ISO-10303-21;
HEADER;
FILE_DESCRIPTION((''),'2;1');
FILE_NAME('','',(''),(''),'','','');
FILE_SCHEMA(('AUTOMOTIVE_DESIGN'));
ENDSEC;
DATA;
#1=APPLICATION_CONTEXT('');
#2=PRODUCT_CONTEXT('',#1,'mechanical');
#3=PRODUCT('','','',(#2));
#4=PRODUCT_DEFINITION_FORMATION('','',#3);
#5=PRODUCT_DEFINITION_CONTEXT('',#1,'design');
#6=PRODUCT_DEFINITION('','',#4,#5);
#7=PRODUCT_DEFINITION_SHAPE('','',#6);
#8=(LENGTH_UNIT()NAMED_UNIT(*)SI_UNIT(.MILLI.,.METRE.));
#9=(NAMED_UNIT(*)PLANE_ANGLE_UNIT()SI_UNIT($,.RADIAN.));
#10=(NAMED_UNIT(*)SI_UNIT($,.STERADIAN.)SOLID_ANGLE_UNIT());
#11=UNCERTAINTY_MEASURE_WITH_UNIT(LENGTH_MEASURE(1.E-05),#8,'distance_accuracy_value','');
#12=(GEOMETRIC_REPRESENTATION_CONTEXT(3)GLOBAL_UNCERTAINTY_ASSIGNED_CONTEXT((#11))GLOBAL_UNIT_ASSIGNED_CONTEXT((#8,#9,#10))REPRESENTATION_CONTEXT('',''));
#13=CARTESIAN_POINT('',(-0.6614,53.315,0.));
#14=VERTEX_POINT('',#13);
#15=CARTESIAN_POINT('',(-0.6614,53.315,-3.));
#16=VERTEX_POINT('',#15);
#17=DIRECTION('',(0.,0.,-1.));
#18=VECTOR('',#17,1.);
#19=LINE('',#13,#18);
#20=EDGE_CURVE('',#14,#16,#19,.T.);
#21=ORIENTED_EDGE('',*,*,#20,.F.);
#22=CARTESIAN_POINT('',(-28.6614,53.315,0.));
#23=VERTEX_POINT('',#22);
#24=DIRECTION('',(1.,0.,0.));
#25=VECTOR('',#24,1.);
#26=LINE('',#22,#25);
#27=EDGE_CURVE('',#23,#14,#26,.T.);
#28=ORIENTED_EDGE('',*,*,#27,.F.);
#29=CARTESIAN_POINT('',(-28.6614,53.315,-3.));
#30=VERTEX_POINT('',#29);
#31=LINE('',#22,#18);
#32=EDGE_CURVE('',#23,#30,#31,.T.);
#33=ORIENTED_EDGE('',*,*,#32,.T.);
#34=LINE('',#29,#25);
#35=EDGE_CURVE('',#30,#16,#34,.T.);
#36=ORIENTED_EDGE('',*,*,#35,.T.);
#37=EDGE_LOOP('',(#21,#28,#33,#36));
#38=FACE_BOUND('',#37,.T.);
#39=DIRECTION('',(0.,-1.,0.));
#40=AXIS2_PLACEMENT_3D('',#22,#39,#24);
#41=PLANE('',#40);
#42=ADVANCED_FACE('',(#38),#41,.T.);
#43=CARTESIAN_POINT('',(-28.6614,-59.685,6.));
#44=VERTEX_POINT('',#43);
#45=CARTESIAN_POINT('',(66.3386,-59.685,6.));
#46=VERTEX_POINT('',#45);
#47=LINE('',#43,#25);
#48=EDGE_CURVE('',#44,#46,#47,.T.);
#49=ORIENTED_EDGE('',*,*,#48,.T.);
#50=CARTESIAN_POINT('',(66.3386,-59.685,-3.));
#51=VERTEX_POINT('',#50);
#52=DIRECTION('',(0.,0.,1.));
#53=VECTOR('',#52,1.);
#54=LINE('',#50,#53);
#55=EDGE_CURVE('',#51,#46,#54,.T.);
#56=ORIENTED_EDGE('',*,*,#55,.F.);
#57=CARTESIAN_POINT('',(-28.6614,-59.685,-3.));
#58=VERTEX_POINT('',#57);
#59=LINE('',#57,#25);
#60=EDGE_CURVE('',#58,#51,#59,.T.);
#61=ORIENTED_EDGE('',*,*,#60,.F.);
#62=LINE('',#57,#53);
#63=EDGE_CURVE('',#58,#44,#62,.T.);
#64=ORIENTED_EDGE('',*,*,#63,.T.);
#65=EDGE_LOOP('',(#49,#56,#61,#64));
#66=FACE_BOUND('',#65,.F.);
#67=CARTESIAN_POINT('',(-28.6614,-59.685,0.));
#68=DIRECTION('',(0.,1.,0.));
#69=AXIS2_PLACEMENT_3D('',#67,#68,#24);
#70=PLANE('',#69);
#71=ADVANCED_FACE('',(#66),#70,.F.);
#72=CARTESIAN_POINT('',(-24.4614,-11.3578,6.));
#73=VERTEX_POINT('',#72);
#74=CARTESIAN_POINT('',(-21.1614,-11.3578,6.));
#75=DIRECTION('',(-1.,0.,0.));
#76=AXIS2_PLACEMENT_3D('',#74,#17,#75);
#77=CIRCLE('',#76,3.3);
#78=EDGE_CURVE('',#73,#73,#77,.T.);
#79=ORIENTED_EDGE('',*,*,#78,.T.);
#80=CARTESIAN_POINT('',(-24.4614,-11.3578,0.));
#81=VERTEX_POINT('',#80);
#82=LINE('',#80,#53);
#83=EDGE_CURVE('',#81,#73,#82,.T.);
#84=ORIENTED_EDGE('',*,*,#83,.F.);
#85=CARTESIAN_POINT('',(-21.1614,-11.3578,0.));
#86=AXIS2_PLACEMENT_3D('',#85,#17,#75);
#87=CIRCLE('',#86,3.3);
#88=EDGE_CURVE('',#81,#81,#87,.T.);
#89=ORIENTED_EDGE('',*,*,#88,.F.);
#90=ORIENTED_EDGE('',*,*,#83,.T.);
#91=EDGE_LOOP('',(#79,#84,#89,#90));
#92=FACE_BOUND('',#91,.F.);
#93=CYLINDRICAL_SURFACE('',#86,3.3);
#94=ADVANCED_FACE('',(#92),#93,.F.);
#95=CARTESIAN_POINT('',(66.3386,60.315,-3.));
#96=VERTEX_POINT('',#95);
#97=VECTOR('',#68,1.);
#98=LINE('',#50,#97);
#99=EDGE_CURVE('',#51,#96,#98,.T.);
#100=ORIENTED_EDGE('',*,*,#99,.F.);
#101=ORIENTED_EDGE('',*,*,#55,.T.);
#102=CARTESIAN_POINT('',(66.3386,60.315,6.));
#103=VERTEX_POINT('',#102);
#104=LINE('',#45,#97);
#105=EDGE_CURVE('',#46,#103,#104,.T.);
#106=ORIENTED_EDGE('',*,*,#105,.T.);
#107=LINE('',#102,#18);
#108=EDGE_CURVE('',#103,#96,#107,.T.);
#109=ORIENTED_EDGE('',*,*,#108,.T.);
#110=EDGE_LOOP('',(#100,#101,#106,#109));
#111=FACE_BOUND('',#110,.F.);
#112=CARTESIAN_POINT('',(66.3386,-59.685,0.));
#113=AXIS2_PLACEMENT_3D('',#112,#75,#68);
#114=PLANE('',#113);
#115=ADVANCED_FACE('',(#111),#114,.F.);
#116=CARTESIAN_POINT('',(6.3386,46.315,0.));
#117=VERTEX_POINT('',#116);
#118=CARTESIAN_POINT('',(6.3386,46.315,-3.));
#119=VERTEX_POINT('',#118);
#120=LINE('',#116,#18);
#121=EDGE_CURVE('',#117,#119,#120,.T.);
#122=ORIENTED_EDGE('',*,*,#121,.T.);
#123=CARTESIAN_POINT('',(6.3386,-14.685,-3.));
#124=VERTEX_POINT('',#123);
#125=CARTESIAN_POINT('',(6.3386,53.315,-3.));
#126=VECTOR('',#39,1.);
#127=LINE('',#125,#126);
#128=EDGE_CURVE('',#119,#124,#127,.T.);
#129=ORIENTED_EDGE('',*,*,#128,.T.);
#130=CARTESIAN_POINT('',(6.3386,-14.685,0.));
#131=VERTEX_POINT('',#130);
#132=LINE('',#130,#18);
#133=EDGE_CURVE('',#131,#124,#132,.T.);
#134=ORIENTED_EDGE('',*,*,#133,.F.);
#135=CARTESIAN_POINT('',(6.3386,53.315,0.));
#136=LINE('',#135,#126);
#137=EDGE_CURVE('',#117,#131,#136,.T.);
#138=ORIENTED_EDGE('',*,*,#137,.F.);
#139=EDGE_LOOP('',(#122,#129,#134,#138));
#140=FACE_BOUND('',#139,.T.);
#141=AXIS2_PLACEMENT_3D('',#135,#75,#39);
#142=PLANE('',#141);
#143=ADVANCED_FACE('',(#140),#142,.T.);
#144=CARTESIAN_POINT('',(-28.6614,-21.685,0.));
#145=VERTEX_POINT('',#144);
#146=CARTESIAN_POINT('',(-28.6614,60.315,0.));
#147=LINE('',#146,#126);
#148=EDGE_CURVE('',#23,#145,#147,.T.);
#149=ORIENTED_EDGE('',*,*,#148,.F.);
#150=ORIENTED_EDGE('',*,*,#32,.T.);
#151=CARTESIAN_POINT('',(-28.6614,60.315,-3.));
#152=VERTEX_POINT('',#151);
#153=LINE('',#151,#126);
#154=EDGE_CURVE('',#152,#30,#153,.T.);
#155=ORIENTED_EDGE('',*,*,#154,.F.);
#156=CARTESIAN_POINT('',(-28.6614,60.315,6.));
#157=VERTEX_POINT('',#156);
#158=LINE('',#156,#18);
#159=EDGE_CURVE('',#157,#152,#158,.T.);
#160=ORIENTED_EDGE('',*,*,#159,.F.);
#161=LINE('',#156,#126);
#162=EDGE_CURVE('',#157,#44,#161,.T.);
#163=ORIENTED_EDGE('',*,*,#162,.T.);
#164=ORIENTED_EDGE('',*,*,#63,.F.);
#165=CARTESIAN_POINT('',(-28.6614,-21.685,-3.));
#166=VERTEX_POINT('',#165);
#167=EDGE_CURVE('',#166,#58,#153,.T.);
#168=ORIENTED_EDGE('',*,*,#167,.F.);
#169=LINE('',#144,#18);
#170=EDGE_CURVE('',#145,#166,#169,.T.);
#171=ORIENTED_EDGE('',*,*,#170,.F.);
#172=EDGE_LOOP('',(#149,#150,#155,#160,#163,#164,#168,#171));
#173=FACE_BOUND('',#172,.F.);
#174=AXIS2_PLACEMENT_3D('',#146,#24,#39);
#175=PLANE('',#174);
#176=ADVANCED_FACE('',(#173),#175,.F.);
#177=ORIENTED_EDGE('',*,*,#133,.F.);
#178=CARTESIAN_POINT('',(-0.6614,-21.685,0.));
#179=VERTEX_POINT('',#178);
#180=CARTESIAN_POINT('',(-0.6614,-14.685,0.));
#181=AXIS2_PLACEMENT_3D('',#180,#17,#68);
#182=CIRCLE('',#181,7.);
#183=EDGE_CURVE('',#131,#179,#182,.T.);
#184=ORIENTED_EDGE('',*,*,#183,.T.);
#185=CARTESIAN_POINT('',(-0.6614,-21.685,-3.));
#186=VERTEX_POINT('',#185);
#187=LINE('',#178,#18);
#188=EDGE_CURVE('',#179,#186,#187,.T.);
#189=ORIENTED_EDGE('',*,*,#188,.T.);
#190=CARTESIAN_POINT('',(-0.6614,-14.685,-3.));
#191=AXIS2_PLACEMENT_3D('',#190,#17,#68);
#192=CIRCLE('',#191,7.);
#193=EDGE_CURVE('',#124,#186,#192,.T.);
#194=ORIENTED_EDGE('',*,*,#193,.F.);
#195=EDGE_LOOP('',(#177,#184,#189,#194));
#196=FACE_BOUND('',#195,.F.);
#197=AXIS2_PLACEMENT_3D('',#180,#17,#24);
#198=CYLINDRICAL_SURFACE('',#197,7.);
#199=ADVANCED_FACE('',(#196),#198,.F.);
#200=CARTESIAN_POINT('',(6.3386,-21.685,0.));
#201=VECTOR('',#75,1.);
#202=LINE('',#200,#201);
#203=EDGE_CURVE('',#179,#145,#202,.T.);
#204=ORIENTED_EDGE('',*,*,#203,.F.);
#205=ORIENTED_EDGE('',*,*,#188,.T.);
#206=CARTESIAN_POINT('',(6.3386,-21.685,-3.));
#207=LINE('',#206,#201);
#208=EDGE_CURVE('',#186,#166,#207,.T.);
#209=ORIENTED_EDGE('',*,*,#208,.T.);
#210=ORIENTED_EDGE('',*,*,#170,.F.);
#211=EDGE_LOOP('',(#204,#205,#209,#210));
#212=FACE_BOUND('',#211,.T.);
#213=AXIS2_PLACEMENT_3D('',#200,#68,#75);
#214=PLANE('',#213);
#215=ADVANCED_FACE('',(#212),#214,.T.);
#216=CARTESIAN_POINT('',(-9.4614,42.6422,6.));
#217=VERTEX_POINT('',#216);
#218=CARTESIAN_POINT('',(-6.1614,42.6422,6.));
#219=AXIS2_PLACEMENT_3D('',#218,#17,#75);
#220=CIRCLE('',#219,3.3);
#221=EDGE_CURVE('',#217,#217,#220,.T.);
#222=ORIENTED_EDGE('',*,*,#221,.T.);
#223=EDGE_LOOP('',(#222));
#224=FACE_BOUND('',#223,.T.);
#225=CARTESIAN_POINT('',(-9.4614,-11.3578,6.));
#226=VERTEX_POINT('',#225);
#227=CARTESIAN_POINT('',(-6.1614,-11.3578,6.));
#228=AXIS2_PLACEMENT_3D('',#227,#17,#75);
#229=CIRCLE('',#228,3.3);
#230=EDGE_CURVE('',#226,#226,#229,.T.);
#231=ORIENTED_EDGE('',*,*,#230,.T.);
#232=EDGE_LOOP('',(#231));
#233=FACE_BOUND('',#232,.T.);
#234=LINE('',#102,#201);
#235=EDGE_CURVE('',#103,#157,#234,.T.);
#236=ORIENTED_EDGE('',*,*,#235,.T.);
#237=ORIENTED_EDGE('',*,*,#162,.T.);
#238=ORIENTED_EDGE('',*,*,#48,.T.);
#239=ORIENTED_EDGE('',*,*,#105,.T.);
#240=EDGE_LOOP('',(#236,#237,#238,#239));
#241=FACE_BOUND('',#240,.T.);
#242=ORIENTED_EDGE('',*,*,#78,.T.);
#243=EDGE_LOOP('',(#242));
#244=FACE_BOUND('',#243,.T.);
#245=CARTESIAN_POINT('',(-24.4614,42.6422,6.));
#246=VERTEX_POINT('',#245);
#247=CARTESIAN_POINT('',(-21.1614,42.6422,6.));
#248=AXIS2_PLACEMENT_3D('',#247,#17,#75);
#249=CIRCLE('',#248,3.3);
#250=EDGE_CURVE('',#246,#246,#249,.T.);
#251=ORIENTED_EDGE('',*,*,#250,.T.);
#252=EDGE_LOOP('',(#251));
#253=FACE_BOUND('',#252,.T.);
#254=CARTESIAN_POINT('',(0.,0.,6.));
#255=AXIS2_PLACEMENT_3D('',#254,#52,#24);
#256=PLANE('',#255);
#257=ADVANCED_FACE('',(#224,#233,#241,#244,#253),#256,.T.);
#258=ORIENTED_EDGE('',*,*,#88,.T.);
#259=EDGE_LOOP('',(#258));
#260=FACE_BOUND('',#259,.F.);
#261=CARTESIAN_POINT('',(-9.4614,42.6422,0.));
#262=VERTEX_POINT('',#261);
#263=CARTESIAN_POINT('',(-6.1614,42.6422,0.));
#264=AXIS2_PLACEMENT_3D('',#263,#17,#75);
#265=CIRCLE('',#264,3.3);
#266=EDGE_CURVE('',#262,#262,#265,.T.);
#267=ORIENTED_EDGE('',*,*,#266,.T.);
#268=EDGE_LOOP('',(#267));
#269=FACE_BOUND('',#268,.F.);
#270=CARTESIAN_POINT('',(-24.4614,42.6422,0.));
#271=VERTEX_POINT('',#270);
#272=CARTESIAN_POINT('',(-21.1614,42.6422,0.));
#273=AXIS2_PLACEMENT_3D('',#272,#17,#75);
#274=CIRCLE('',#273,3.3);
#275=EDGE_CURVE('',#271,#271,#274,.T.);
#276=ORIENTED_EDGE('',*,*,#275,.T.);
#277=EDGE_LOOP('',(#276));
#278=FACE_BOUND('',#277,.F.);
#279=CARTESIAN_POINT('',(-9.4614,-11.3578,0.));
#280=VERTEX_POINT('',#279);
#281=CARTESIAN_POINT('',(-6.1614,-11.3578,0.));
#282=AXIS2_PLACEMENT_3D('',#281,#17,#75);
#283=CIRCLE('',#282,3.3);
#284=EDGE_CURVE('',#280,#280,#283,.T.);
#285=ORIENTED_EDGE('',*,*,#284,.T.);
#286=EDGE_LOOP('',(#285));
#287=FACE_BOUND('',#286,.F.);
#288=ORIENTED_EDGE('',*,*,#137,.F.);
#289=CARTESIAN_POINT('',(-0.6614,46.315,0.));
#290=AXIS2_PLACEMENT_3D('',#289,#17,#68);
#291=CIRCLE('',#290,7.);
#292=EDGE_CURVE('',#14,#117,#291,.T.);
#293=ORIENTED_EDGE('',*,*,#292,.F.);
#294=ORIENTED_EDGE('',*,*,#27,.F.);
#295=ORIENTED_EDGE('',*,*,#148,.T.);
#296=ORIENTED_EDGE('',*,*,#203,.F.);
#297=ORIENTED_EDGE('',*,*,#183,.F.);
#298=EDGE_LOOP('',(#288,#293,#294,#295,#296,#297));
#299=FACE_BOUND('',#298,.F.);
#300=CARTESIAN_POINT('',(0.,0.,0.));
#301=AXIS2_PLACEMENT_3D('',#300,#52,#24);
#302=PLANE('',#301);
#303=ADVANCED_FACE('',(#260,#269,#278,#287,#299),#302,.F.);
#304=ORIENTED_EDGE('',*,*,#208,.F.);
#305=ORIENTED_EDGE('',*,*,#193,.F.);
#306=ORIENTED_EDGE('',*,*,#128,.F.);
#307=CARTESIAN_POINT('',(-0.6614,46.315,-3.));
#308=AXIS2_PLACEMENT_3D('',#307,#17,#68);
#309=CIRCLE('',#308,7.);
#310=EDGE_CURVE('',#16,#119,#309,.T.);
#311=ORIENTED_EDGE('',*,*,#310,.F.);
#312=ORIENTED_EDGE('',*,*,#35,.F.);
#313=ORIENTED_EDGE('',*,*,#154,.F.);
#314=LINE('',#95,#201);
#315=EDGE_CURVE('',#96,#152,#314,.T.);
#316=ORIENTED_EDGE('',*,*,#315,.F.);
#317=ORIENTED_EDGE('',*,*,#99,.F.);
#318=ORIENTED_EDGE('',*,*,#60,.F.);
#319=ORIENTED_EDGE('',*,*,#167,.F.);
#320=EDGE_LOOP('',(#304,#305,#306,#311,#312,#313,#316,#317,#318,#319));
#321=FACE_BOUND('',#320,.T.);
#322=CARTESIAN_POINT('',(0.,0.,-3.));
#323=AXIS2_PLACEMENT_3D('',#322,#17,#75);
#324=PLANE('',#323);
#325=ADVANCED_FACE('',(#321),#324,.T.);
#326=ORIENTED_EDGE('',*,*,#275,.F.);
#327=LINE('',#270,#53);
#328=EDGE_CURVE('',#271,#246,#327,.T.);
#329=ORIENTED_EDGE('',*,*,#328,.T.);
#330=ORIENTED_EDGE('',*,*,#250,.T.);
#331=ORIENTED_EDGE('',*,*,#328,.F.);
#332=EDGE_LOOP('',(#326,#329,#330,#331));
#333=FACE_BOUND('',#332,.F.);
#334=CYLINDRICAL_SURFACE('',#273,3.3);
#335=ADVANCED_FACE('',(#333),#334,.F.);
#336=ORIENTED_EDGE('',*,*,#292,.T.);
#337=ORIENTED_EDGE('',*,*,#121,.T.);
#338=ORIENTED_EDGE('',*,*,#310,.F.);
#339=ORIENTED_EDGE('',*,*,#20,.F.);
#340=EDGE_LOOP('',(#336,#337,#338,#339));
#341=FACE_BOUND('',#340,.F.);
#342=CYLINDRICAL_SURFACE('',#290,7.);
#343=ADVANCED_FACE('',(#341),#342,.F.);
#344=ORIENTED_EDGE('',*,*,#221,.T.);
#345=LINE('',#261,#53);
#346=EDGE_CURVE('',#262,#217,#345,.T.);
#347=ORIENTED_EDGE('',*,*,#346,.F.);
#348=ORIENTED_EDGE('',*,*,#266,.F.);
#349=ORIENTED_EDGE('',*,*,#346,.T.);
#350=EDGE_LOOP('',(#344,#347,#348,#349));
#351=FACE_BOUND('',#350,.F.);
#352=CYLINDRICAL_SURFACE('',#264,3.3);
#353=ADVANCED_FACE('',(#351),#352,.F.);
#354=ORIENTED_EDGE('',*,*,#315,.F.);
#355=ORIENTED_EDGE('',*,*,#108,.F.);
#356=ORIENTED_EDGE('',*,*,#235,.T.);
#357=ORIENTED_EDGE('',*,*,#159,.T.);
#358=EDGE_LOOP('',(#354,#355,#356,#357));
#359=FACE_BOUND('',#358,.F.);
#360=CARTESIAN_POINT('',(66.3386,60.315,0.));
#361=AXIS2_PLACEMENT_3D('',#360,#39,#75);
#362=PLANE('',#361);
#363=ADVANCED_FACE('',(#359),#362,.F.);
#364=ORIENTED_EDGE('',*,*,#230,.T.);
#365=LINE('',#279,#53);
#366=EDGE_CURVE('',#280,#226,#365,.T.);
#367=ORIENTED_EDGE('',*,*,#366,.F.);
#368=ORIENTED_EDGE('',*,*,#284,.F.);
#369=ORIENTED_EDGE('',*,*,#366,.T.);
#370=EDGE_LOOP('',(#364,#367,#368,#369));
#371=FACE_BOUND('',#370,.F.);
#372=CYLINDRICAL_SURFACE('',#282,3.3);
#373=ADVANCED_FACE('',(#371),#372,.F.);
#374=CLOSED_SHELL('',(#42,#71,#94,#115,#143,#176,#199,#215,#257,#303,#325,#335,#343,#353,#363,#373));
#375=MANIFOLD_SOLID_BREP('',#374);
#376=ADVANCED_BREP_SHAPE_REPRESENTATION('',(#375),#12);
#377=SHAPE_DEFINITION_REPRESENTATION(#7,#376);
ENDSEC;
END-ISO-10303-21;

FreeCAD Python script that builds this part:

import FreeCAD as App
import Part
import Sketcher

V = App.Vector


def edges_at(feature, points):
    """Names of the edges that pass closest to the given points."""
    edges = feature.Shape.Edges
    near = lambda p: min(range(len(edges)), key=lambda i: edges[i].distToShape(Part.Vertex(*p))[0])
    return sorted({f"Edge{near(p) + 1}" for p in points})

doc = App.newDocument("Part")
body = doc.addObject("PartDesign::Body", "Body")

# Sketch on XY plane
sketch1 = body.newObject("Sketcher::SketchObject", "Sketch")
sketch1.AttachmentSupport = (doc.getObject("XY_Plane"), [""])
sketch1.MapMode = "FlatFace"
sketch1.addGeometry([
    Part.LineSegment(V(-29, 60, 0), V(-29, -60, 0)),
    Part.LineSegment(V(-29, -60, 0), V(66, -60, 0)),
    Part.LineSegment(V(66, -60, 0), V(66, 60, 0)),
    Part.LineSegment(V(66, 60, 0), V(-29, 60, 0)),
], False)
sketch1.addConstraint([
    Sketcher.Constraint("Coincident", 0, 2, 1, 1),
    Sketcher.Constraint("Coincident", 1, 2, 2, 1),
    Sketcher.Constraint("Coincident", 2, 2, 3, 1),
    Sketcher.Constraint("Coincident", 3, 2, 0, 1),
    Sketcher.Constraint("Vertical", 0),
    Sketcher.Constraint("Horizontal", 1),
    Sketcher.Constraint("Vertical", 2),
    Sketcher.Constraint("Horizontal", 3),
    Sketcher.Constraint("DistanceX", 1, 1, 1, 2, 95.0),
    Sketcher.Constraint("DistanceY", 0, 2, 0, 1, 120.0),
    Sketcher.Constraint("DistanceY", 0, 2, -1, 1, 59.685),
    Sketcher.Constraint("DistanceX", 0, 2, -1, 1, 28.6614),
])
pad1 = body.newObject("PartDesign::Pad", "Pad")
pad1.Profile = sketch1
pad1.Length = 6

# Sketch on XY plane
sketch2 = body.newObject("Sketcher::SketchObject", "Sketch001")
sketch2.AttachmentSupport = (doc.getObject("XY_Plane"), [""])
sketch2.MapMode = "FlatFace"
sketch2.addGeometry([
    Part.LineSegment(V(-29, 60, 0), V(66, 60, 0)),  # 0
    Part.LineSegment(V(66, 60, 0), V(66, -60, 0)),  # 1
    Part.LineSegment(V(66, -60, 0), V(-29, -60, 0)),  # 2
    Part.LineSegment(V(-29, -60, 0), V(-29, -22, 0)),  # 3
    Part.LineSegment(V(-29, -22, 0), V(6, -22, 0)),  # 4
    Part.LineSegment(V(6, -22, 0), V(6, 53, 0)),  # 5
    Part.LineSegment(V(6, 53, 0), V(-29, 53, 0)),  # 6
    Part.LineSegment(V(-29, 53, 0), V(-29, 60, 0)),  # 7
], False)
sketch2.addConstraint([
    Sketcher.Constraint("Coincident", 0, 2, 1, 1),
    Sketcher.Constraint("Coincident", 1, 2, 2, 1),
    Sketcher.Constraint("Coincident", 2, 2, 3, 1),
    Sketcher.Constraint("Coincident", 3, 2, 4, 1),
    Sketcher.Constraint("Coincident", 4, 2, 5, 1),
    Sketcher.Constraint("Coincident", 5, 2, 6, 1),
    Sketcher.Constraint("Coincident", 6, 2, 7, 1),
    Sketcher.Constraint("Coincident", 7, 2, 0, 1),
    Sketcher.Constraint("Horizontal", 0),
    Sketcher.Constraint("Vertical", 1),
    Sketcher.Constraint("Horizontal", 2),
    Sketcher.Constraint("Vertical", 3),
    Sketcher.Constraint("Horizontal", 4),
    Sketcher.Constraint("Vertical", 5),
    Sketcher.Constraint("Horizontal", 6),
    Sketcher.Constraint("Vertical", 7),
    Sketcher.Constraint("Vertical", 3, 2, 6, 2),
    Sketcher.Constraint("DistanceX", 4, 1, 4, 2, 35.0),
    Sketcher.Constraint("DistanceY", 5, 1, 5, 2, 75.0),
    Sketcher.Constraint("DistanceY", 7, 1, 7, 2, 7.0),
    Sketcher.Constraint("DistanceX", 0, 1, 0, 2, 95.0),
    Sketcher.Constraint("DistanceY", 1, 2, 1, 1, 120.0),
    Sketcher.Constraint("DistanceY", -1, 1, 0, 2, 60.315),
    Sketcher.Constraint("DistanceX", -1, 1, 0, 2, 66.3386),
])
pad2 = body.newObject("PartDesign::Pad", "Pad001")
pad2.Profile = sketch2
pad2.Length = 3
pad2.Reversed = True
doc.recompute()

fillet = body.newObject("PartDesign::Fillet", "Fillet")
fillet.Base = (pad2, edges_at(pad2, [(6.339, -21.685, -1.5), (6.339, 53.315, -1.5)]))
fillet.Radius = 7

# Sketch on XY plane
sketch3 = body.newObject("Sketcher::SketchObject", "Sketch002")
sketch3.AttachmentSupport = (doc.getObject("XY_Plane"), [""])
sketch3.MapMode = "FlatFace"
sketch3.addGeometry([
    Part.Circle(V(-6.2, 42.6, 0), V(0, 0, 1), 3.3),
    Part.Circle(V(-21.2, 42.6, 0), V(0, 0, 1), 3.3),
    Part.Circle(V(-21.2, -11.4, 0), V(0, 0, 1), 3.3),
    Part.Circle(V(-6.2, -11.4, 0), V(0, 0, 1), 3.3),
], False)
sketch3.addConstraint([
    Sketcher.Constraint("Equal", 0, 1),
    Sketcher.Constraint("Equal", 1, 2),
    Sketcher.Constraint("Equal", 2, 3),
    Sketcher.Constraint("Horizontal", 0, 3, 1, 3),
    Sketcher.Constraint("Horizontal", 2, 3, 3, 3),
    Sketcher.Constraint("Vertical", 1, 3, 2, 3),
    Sketcher.Constraint("Vertical", 0, 3, 3, 3),
    Sketcher.Constraint("Diameter", 0, 6.6),
    Sketcher.Constraint("DistanceX", 1, 3, 0, 3, 15.0),
    Sketcher.Constraint("DistanceY", 2, 3, 1, 3, 54.0),
    Sketcher.Constraint("DistanceX", 0, 3, -1, 1, 6.1614),
    Sketcher.Constraint("DistanceY", -1, 1, 0, 3, 42.6422),
])
pocket1 = body.newObject("PartDesign::Pocket", "Pocket")
pocket1.Profile = sketch3
pocket1.Type = "ThroughAll"
pocket1.Reversed = True

doc.recompute()
